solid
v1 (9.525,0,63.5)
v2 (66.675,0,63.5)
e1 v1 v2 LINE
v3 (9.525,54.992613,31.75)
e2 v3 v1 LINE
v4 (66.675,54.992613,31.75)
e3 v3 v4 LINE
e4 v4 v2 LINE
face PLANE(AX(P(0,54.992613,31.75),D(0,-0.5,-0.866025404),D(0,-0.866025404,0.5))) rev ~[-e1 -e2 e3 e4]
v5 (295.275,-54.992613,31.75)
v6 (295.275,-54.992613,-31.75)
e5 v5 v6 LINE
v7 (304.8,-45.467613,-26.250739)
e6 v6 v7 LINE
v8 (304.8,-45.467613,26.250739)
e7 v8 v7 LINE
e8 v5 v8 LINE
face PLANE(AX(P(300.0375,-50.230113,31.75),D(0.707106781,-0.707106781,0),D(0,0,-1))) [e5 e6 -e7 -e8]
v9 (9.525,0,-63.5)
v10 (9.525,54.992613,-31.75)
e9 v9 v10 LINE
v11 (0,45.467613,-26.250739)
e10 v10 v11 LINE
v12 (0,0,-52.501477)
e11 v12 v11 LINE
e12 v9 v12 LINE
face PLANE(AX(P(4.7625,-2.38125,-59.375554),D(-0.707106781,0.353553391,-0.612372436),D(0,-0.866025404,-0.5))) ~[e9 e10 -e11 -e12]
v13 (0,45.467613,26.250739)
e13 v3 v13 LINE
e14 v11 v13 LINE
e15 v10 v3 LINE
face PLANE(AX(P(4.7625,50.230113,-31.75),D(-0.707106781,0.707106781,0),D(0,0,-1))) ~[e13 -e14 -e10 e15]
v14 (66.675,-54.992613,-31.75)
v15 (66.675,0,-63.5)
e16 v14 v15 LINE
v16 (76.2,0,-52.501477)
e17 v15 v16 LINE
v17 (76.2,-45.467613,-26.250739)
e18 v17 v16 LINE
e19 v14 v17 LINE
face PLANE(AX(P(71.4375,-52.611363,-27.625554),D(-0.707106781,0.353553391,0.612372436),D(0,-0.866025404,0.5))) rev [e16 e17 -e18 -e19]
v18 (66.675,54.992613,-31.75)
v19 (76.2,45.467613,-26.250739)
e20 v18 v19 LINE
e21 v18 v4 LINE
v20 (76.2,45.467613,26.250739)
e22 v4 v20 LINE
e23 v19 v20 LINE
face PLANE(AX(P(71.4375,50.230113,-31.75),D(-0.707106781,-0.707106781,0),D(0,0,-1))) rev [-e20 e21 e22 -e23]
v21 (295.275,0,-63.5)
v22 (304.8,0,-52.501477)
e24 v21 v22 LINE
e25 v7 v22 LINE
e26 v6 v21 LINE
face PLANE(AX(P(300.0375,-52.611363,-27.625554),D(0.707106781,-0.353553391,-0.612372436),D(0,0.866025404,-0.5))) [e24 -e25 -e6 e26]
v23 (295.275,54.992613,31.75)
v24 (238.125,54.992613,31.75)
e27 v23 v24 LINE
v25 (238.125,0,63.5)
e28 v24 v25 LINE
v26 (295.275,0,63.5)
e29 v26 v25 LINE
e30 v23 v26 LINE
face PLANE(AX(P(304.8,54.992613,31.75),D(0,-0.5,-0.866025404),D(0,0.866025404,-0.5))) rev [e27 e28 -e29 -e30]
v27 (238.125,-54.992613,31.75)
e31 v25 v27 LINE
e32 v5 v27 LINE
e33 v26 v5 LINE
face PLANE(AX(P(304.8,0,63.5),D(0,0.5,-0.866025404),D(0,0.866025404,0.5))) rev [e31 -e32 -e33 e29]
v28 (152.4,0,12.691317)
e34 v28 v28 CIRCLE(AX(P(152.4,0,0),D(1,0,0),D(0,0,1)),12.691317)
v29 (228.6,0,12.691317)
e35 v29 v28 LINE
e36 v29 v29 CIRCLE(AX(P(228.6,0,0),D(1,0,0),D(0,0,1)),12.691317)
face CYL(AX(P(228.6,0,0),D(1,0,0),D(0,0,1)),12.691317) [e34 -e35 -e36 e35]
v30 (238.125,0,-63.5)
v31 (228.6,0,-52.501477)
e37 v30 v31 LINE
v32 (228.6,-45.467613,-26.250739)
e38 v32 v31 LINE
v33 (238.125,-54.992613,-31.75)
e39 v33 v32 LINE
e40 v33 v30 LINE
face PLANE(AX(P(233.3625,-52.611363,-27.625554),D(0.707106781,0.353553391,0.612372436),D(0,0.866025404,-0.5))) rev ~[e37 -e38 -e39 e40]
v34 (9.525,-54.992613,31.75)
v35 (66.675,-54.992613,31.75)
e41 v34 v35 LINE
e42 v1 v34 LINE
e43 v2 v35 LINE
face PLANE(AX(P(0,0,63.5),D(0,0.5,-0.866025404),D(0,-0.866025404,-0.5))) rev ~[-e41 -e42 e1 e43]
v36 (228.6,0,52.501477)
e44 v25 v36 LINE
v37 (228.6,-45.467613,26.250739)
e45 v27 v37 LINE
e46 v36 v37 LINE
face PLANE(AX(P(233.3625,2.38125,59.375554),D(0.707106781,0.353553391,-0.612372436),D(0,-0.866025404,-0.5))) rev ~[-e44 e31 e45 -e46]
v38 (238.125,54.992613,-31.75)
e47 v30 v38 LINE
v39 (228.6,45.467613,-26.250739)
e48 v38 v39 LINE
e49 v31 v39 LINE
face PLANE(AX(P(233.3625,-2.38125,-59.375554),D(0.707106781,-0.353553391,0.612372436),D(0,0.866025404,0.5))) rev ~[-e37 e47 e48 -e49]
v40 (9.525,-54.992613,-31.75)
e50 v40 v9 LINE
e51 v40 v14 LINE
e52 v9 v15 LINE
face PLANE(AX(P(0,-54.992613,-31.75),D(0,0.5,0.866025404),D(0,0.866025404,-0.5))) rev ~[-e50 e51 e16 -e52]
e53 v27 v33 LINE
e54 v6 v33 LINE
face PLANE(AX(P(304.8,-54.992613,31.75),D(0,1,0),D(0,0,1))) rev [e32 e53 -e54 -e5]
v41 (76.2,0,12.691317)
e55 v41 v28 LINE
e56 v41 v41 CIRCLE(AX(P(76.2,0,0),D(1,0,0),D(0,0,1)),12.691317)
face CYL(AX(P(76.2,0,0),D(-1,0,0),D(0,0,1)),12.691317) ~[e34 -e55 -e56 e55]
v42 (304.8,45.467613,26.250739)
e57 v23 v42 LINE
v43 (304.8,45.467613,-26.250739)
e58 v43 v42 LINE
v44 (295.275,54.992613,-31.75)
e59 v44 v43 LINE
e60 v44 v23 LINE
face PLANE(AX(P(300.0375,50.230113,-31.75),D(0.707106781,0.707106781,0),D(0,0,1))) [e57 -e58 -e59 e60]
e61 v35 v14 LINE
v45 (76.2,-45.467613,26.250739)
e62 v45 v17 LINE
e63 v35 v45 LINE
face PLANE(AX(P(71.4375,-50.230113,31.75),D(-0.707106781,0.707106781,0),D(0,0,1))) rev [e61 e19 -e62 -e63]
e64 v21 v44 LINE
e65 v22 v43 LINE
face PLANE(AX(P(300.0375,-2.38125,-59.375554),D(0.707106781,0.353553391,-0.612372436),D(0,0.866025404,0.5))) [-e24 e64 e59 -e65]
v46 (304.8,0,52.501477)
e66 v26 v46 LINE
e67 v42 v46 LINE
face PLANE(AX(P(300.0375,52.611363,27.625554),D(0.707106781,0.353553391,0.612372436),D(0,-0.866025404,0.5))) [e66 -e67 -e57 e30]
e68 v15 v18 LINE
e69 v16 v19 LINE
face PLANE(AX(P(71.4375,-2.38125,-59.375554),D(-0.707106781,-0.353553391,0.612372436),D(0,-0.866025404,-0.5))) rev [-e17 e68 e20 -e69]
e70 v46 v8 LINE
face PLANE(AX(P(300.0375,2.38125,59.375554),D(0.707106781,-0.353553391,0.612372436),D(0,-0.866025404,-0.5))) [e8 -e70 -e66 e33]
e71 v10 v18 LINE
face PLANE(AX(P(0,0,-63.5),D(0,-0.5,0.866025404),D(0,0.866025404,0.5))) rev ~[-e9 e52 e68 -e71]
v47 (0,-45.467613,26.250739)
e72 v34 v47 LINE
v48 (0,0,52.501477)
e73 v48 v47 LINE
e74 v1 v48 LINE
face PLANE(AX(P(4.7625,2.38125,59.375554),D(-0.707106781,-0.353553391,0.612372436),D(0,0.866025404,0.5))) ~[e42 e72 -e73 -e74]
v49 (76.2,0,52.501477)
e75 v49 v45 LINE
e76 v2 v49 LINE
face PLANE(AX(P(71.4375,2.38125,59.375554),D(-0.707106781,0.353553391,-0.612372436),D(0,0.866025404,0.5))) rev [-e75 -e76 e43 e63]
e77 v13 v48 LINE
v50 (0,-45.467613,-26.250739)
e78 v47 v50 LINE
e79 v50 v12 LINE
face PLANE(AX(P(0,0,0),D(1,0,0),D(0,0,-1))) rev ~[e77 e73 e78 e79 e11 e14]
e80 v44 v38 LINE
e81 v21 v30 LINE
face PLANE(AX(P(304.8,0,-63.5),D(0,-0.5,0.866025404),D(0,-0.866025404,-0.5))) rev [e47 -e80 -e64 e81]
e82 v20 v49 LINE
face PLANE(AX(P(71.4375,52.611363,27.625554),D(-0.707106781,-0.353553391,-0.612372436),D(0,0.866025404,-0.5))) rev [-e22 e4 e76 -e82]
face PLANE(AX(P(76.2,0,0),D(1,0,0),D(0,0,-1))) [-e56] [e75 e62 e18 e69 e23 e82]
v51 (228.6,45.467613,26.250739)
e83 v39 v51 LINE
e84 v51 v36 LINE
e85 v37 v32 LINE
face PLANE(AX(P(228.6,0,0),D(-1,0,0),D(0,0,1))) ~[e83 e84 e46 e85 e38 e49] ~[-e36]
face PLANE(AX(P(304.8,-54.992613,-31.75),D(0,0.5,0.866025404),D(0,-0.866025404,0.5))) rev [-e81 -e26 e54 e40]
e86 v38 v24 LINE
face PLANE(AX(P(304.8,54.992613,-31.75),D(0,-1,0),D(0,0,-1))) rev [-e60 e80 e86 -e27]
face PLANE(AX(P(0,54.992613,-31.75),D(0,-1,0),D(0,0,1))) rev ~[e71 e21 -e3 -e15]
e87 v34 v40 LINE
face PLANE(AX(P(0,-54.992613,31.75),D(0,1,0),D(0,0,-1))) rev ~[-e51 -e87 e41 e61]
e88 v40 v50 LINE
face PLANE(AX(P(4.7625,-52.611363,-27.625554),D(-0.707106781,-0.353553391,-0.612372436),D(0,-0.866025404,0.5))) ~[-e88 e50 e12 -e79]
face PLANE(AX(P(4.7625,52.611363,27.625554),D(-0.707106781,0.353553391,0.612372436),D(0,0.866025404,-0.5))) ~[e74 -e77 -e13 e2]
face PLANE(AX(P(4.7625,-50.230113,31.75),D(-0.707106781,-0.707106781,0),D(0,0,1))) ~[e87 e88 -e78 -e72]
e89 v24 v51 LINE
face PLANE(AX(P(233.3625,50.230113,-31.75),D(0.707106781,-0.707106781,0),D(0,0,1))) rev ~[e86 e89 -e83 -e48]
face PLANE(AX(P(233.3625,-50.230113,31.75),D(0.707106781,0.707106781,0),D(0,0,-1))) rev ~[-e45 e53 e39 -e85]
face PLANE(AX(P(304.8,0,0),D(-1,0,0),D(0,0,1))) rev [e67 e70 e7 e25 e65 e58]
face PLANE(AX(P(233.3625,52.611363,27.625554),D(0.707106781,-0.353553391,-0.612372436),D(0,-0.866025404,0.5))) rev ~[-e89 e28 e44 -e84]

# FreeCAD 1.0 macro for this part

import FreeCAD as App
import Part
import Sketcher
from FreeCAD import Vector
Q = App.Units.Quantity


def edges_at(feature, points):
    """Names of the edges that pass closest to the given points."""
    edges = feature.Shape.Edges
    near = lambda p: min(range(len(edges)), key=lambda i: edges[i].distToShape(Part.Vertex(*p))[0])
    return sorted({f"Edge{near(p) + 1}" for p in points})

doc = App.newDocument("Part")
params = doc.addObject("Spreadsheet::Sheet", "Params")
for row, (alias, value) in enumerate([
    ("sketch1_height", "2.5 in"),
    ("pad1_length", "3 in"),
    ("chamfer_size", "0.375 in"),
    ("pad2_length", "3 in"),
], start=1):
    params.set(f"A{row}", alias)
    params.set(f"B{row}", "=" + value)
    params.setAlias(f"B{row}", alias)

body = doc.addObject("PartDesign::Body", "Body")

# Sketch on YZ plane
sketch1 = body.newObject("Sketcher::SketchObject", "Sketch")
sketch1.AttachmentSupport = (doc.getObject("YZ_Plane"), [""])
sketch1.MapMode = "FlatFace"
sketch1.addGeometry(Part.LineSegment(Vector(0, -64, 0), Vector(55, -32, 0)), False)
sketch1.addGeometry(Part.LineSegment(Vector(55, -32, 0), Vector(55, 32, 0)), False)
sketch1.addGeometry(Part.LineSegment(Vector(55, 32, 0), Vector(0, 64, 0)), False)
sketch1.addGeometry(Part.LineSegment(Vector(0, 64, 0), Vector(-55, 32, 0)), False)
sketch1.addGeometry(Part.LineSegment(Vector(-55, 32, 0), Vector(-55, -32, 0)), False)
sketch1.addGeometry(Part.LineSegment(Vector(-55, -32, 0), Vector(0, -64, 0)), False)
sketch1.addConstraint(Sketcher.Constraint("Coincident", 0, 2, 1, 1))
sketch1.addConstraint(Sketcher.Constraint("Coincident", 1, 2, 2, 1))
sketch1.addConstraint(Sketcher.Constraint("Coincident", 2, 2, 3, 1))
sketch1.addConstraint(Sketcher.Constraint("Coincident", 3, 2, 4, 1))
sketch1.addConstraint(Sketcher.Constraint("Coincident", 4, 2, 5, 1))
sketch1.addConstraint(Sketcher.Constraint("Coincident", 5, 2, 0, 1))
sketch1.addConstraint(Sketcher.Constraint("Vertical", 1))
sketch1.addConstraint(Sketcher.Constraint("Vertical", 4))
sketch1.addConstraint(Sketcher.Constraint("Symmetric", 0, 2, 3, 2, -1, 1))
sketch1.addConstraint(Sketcher.Constraint("Symmetric", 2, 2, 5, 2, -1, 1))
sketch1.addConstraint(Sketcher.Constraint("PointOnObject", 2, 2, -2))
sketch1.addConstraint(Sketcher.Constraint("Parallel", 2, 5))
sketch1.addConstraint(Sketcher.Constraint("Horizontal", 1, 2, 3, 2))
sketch1.addConstraint(Sketcher.Constraint("DistanceY", 1, 1, 1, 2, Q("2.5 in")))
sketch1.addConstraint(Sketcher.Constraint("Angle", 0, Q("30 deg")))
sketch1.addConstraint(Sketcher.Constraint("DistanceY", 5, 2, 2, 2, Q("5 in")))
sketch1.setExpression("Constraints[13]", "Params.sketch1_height")
pad1 = body.newObject("PartDesign::Pad", "Pad")
pad1.Profile = sketch1
pad1.setExpression("Length", "Params.pad1_length")
doc.recompute()

chamfer = body.newObject("PartDesign::Chamfer", "Chamfer")
chamfer.Base = (pad1, edges_at(pad1, [
    (76.2, 54.993, 0),
    (76.2, 27.496, 47.625),
    (76.2, -27.496, 47.625),
    (76.2, -54.993, 0),
    (76.2, -27.496, -47.625),
    (0, -54.993, 0),
    (0, -27.496, 47.625),
    (0, 27.496, 47.625),
    (76.2, 27.496, -47.625),
    (0, 54.993, 0),
    (0, 27.496, -47.625),
    (0, -27.496, -47.625),
]))
chamfer.setExpression("Size", "Params.chamfer_size")

# Sketch on YZ plane
sketch2 = body.newObject("Sketcher::SketchObject", "Sketch001")
sketch2.AttachmentSupport = (doc.getObject("YZ_Plane"), [""])
sketch2.MapMode = "FlatFace"
sketch2.AttachmentOffset = App.Placement(Vector(0, 0, 3 * 25.4), App.Rotation())
sketch2.addGeometry(Part.Circle(Vector(0, 0, 0), Vector(0, 0, 1), 13), False)
sketch2.addConstraint(Sketcher.Constraint("Coincident", 0, 3, -1, 1))
sketch2.addConstraint(Sketcher.Constraint("Diameter", 0, Q("25.382634 mm")))
pad2 = body.newObject("PartDesign::Pad", "Pad001")
pad2.Profile = sketch2
pad2.setExpression("Length", "Params.pad2_length")
body2 = doc.addObject("PartDesign::Body", "Body001")
doc.recompute()

body2.BaseFeature = body
doc.recompute()

mirroring = doc.addObject("Part::Mirroring", "Mirroring")
mirroring.Source = body
mirroring.Base = Vector(152.4, 0, 0)
mirroring.Normal = Vector(1, 0, 0)
body3 = doc.addObject("PartDesign::Body", "Body002")
body3.BaseFeature = mirroring
boolean = body2.newObject("PartDesign::Boolean", "Boolean")
boolean.Type = "Fuse"
boolean.addObjects([body3])
doc.recompute()
mirroring.Visibility = False

doc.recompute()
